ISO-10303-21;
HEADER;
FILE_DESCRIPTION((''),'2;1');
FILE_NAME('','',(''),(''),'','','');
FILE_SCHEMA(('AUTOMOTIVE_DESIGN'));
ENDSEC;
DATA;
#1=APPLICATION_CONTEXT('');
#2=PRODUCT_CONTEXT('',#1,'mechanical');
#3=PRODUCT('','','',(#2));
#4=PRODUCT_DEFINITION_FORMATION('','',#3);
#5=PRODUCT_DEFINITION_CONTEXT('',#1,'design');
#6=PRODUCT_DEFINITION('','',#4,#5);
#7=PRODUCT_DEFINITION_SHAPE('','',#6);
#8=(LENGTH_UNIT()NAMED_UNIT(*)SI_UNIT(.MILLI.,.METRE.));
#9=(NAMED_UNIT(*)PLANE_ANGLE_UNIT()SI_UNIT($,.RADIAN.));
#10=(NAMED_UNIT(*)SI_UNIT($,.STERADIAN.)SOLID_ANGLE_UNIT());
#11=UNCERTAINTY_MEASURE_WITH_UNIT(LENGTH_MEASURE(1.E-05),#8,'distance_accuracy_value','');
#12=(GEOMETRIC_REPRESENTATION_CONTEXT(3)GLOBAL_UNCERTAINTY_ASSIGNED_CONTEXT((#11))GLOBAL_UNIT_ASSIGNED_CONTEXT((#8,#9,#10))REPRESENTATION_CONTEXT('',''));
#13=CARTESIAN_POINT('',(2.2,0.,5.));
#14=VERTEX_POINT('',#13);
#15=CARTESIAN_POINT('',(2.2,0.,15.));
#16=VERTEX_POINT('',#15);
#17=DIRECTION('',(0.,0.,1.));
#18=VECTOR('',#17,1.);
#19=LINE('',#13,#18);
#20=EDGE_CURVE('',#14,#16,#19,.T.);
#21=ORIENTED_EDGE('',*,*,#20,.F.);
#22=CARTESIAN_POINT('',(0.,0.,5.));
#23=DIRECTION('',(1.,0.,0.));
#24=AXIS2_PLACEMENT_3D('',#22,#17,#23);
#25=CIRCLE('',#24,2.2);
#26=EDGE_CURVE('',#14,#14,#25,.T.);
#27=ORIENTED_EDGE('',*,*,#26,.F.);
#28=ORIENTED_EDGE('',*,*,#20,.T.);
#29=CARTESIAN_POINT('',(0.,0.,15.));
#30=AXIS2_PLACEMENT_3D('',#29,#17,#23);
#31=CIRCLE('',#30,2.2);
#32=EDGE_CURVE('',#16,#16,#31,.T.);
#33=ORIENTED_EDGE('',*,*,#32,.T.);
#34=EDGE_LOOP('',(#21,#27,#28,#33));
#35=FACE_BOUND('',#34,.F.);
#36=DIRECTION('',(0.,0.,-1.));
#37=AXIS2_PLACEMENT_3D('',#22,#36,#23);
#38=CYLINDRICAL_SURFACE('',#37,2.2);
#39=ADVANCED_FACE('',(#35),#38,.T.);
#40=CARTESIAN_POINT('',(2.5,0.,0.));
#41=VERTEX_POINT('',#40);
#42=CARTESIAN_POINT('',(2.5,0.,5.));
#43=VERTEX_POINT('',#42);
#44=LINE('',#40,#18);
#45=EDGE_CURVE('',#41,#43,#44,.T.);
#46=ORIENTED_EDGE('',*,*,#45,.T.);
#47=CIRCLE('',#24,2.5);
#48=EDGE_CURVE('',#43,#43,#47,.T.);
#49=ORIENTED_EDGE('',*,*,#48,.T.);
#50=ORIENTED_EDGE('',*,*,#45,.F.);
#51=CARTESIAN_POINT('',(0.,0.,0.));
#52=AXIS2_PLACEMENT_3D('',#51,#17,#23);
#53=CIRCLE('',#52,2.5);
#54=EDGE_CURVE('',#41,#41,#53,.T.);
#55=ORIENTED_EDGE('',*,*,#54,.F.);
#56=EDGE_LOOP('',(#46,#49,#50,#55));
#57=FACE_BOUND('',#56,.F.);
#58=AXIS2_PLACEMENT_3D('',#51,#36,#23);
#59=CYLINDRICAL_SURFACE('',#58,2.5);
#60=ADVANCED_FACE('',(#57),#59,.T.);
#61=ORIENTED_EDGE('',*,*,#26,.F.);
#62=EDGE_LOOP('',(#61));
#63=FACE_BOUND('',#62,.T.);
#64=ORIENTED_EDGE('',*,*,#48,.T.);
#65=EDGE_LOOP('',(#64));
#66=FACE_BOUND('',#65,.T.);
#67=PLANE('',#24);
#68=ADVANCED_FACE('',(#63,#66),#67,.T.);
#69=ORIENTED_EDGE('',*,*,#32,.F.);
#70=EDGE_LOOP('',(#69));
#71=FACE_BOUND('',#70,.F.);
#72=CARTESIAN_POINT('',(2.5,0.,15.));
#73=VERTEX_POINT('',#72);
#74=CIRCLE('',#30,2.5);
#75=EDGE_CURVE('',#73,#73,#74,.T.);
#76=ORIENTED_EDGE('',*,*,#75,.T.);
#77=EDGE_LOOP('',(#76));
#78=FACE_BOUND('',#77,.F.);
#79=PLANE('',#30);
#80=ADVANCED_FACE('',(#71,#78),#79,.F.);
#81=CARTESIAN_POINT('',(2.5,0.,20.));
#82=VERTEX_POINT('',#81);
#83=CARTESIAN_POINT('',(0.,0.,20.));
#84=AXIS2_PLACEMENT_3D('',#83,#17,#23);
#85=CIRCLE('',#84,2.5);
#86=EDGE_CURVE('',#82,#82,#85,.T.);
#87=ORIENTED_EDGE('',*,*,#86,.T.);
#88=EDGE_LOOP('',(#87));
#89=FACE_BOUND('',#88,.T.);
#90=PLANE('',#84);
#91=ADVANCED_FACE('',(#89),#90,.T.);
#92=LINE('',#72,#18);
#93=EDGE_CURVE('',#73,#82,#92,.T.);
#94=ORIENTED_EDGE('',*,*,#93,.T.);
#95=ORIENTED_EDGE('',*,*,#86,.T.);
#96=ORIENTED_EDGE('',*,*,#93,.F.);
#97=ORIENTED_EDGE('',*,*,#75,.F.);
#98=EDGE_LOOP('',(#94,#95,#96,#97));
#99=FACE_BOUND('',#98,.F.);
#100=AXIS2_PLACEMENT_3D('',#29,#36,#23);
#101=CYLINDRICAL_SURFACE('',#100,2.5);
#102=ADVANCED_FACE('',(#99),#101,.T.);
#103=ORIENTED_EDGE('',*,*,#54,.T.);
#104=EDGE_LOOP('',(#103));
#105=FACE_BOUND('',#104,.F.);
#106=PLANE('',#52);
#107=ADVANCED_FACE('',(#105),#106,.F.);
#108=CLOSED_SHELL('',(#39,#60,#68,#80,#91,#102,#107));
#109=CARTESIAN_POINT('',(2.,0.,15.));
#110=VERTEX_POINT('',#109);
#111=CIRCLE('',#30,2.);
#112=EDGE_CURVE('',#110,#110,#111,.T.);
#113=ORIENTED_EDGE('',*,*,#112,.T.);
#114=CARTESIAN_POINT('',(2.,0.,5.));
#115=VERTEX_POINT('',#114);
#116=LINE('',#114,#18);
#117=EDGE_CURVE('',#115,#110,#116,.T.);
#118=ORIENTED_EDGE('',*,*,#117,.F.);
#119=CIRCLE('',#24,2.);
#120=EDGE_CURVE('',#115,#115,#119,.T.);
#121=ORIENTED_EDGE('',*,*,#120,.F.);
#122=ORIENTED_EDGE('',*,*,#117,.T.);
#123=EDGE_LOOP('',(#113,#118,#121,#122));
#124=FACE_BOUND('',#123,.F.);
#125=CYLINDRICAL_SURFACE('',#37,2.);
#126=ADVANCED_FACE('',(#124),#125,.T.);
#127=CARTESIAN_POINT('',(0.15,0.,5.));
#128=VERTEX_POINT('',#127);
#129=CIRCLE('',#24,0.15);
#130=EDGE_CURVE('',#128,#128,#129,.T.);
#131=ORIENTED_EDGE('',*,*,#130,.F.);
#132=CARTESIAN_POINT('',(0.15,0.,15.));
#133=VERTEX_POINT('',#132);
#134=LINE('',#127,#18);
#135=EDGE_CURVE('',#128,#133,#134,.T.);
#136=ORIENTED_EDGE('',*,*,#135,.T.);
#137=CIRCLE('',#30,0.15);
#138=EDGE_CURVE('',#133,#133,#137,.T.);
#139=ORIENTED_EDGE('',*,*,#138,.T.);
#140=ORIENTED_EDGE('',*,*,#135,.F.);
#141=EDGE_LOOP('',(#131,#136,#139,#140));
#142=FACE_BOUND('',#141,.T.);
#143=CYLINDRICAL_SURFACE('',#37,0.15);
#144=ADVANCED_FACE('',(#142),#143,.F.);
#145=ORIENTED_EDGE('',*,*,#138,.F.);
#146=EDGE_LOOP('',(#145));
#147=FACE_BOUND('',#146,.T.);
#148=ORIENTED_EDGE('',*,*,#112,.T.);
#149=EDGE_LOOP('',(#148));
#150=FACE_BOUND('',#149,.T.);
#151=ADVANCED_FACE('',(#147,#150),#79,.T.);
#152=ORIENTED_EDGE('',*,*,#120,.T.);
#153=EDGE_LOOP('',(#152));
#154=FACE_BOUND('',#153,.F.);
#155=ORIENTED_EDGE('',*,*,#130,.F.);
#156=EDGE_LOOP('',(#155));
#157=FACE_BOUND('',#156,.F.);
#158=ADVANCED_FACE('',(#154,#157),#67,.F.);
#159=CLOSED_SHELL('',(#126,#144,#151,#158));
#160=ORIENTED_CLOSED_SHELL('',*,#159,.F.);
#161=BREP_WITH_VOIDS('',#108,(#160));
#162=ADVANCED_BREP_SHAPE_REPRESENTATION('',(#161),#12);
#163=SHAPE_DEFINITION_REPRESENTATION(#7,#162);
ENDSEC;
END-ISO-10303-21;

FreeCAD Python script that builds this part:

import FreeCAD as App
import Part
import Sketcher

V = App.Vector

doc = App.newDocument("Part")
body = doc.addObject("PartDesign::Body", "Body")

# Sketch on XY plane
sketch1 = doc.addObject("Sketcher::SketchObject", "Sketch")
body.addObject(sketch1)
sketch1.AttachmentSupport = (doc.XY_Plane, [""])
sketch1.MapMode = "FlatFace"
sketch1.addGeometry(Part.Circle(V(0, 0, 0), V(0, 0, 1), 2.5), False)
sketch1.addConstraint([
    Sketcher.Constraint("Coincident", 0, 3, -1, 1),
    Sketcher.Constraint("Diameter", 0, 5.0),
])
pad1 = doc.addObject("PartDesign::Pad", "Pad")
body.addObject(pad1)
pad1.Profile = sketch1
pad1.Length = 5

# Sketch on XY plane
sketch2 = doc.addObject("Sketcher::SketchObject", "Sketch001")
body.addObject(sketch2)
sketch2.AttachmentSupport = (doc.XY_Plane, [""])
sketch2.MapMode = "FlatFace"
sketch2.AttachmentOffset = App.Placement(V(0, 0, 5), App.Rotation())
sketch2.addGeometry([
    Part.Circle(V(0, 0, 0), V(0, 0, 1), 2.2),
    Part.Circle(V(0, 0, 0), V(0, 0, 1), 2),
], False)
sketch2.addConstraint([
    Sketcher.Constraint("Coincident", 0, 3, -1, 1),
    Sketcher.Constraint("Coincident", 1, 3, -1, 1),
    Sketcher.Constraint("Diameter", 1, 4.0),
    Sketcher.Constraint("Diameter", 0, 4.4),
])
pad2 = doc.addObject("PartDesign::Pad", "Pad001")
body.addObject(pad2)
pad2.Profile = sketch2
pad2.Length = 10

# Sketch on XY plane
sketch3 = doc.addObject("Sketcher::SketchObject", "Sketch002")
body.addObject(sketch3)
sketch3.AttachmentSupport = (doc.XY_Plane, [""])
sketch3.MapMode = "FlatFace"
sketch3.AttachmentOffset = App.Placement(V(0, 0, 5), App.Rotation())
sketch3.addGeometry(Part.Circle(V(0, 0, 0), V(0, 0, 1), 0.15), False)
sketch3.addConstraint([
    Sketcher.Constraint("Coincident", 0, 3, -1, 1),
    Sketcher.Constraint("Diameter", 0, 0.3),
])
pad3 = doc.addObject("PartDesign::Pad", "Pad002")
body.addObject(pad3)
pad3.Profile = sketch3
pad3.Length = 10

# Sketch on XY plane
sketch4 = doc.addObject("Sketcher::SketchObject", "Sketch003")
body.addObject(sketch4)
sketch4.AttachmentSupport = (doc.XY_Plane, [""])
sketch4.MapMode = "FlatFace"
sketch4.AttachmentOffset = App.Placement(V(0, 0, 15), App.Rotation())
sketch4.addGeometry(Part.Circle(V(0, 0, 0), V(0, 0, 1), 2.5), False)
sketch4.addConstraint([
    Sketcher.Constraint("Coincident", 0, 3, -1, 1),
    Sketcher.Constraint("Diameter", 0, 5.0),
])
pad4 = doc.addObject("PartDesign::Pad", "Pad003")
body.addObject(pad4)
pad4.Profile = sketch4
pad4.Length = 5

doc.recompute()
